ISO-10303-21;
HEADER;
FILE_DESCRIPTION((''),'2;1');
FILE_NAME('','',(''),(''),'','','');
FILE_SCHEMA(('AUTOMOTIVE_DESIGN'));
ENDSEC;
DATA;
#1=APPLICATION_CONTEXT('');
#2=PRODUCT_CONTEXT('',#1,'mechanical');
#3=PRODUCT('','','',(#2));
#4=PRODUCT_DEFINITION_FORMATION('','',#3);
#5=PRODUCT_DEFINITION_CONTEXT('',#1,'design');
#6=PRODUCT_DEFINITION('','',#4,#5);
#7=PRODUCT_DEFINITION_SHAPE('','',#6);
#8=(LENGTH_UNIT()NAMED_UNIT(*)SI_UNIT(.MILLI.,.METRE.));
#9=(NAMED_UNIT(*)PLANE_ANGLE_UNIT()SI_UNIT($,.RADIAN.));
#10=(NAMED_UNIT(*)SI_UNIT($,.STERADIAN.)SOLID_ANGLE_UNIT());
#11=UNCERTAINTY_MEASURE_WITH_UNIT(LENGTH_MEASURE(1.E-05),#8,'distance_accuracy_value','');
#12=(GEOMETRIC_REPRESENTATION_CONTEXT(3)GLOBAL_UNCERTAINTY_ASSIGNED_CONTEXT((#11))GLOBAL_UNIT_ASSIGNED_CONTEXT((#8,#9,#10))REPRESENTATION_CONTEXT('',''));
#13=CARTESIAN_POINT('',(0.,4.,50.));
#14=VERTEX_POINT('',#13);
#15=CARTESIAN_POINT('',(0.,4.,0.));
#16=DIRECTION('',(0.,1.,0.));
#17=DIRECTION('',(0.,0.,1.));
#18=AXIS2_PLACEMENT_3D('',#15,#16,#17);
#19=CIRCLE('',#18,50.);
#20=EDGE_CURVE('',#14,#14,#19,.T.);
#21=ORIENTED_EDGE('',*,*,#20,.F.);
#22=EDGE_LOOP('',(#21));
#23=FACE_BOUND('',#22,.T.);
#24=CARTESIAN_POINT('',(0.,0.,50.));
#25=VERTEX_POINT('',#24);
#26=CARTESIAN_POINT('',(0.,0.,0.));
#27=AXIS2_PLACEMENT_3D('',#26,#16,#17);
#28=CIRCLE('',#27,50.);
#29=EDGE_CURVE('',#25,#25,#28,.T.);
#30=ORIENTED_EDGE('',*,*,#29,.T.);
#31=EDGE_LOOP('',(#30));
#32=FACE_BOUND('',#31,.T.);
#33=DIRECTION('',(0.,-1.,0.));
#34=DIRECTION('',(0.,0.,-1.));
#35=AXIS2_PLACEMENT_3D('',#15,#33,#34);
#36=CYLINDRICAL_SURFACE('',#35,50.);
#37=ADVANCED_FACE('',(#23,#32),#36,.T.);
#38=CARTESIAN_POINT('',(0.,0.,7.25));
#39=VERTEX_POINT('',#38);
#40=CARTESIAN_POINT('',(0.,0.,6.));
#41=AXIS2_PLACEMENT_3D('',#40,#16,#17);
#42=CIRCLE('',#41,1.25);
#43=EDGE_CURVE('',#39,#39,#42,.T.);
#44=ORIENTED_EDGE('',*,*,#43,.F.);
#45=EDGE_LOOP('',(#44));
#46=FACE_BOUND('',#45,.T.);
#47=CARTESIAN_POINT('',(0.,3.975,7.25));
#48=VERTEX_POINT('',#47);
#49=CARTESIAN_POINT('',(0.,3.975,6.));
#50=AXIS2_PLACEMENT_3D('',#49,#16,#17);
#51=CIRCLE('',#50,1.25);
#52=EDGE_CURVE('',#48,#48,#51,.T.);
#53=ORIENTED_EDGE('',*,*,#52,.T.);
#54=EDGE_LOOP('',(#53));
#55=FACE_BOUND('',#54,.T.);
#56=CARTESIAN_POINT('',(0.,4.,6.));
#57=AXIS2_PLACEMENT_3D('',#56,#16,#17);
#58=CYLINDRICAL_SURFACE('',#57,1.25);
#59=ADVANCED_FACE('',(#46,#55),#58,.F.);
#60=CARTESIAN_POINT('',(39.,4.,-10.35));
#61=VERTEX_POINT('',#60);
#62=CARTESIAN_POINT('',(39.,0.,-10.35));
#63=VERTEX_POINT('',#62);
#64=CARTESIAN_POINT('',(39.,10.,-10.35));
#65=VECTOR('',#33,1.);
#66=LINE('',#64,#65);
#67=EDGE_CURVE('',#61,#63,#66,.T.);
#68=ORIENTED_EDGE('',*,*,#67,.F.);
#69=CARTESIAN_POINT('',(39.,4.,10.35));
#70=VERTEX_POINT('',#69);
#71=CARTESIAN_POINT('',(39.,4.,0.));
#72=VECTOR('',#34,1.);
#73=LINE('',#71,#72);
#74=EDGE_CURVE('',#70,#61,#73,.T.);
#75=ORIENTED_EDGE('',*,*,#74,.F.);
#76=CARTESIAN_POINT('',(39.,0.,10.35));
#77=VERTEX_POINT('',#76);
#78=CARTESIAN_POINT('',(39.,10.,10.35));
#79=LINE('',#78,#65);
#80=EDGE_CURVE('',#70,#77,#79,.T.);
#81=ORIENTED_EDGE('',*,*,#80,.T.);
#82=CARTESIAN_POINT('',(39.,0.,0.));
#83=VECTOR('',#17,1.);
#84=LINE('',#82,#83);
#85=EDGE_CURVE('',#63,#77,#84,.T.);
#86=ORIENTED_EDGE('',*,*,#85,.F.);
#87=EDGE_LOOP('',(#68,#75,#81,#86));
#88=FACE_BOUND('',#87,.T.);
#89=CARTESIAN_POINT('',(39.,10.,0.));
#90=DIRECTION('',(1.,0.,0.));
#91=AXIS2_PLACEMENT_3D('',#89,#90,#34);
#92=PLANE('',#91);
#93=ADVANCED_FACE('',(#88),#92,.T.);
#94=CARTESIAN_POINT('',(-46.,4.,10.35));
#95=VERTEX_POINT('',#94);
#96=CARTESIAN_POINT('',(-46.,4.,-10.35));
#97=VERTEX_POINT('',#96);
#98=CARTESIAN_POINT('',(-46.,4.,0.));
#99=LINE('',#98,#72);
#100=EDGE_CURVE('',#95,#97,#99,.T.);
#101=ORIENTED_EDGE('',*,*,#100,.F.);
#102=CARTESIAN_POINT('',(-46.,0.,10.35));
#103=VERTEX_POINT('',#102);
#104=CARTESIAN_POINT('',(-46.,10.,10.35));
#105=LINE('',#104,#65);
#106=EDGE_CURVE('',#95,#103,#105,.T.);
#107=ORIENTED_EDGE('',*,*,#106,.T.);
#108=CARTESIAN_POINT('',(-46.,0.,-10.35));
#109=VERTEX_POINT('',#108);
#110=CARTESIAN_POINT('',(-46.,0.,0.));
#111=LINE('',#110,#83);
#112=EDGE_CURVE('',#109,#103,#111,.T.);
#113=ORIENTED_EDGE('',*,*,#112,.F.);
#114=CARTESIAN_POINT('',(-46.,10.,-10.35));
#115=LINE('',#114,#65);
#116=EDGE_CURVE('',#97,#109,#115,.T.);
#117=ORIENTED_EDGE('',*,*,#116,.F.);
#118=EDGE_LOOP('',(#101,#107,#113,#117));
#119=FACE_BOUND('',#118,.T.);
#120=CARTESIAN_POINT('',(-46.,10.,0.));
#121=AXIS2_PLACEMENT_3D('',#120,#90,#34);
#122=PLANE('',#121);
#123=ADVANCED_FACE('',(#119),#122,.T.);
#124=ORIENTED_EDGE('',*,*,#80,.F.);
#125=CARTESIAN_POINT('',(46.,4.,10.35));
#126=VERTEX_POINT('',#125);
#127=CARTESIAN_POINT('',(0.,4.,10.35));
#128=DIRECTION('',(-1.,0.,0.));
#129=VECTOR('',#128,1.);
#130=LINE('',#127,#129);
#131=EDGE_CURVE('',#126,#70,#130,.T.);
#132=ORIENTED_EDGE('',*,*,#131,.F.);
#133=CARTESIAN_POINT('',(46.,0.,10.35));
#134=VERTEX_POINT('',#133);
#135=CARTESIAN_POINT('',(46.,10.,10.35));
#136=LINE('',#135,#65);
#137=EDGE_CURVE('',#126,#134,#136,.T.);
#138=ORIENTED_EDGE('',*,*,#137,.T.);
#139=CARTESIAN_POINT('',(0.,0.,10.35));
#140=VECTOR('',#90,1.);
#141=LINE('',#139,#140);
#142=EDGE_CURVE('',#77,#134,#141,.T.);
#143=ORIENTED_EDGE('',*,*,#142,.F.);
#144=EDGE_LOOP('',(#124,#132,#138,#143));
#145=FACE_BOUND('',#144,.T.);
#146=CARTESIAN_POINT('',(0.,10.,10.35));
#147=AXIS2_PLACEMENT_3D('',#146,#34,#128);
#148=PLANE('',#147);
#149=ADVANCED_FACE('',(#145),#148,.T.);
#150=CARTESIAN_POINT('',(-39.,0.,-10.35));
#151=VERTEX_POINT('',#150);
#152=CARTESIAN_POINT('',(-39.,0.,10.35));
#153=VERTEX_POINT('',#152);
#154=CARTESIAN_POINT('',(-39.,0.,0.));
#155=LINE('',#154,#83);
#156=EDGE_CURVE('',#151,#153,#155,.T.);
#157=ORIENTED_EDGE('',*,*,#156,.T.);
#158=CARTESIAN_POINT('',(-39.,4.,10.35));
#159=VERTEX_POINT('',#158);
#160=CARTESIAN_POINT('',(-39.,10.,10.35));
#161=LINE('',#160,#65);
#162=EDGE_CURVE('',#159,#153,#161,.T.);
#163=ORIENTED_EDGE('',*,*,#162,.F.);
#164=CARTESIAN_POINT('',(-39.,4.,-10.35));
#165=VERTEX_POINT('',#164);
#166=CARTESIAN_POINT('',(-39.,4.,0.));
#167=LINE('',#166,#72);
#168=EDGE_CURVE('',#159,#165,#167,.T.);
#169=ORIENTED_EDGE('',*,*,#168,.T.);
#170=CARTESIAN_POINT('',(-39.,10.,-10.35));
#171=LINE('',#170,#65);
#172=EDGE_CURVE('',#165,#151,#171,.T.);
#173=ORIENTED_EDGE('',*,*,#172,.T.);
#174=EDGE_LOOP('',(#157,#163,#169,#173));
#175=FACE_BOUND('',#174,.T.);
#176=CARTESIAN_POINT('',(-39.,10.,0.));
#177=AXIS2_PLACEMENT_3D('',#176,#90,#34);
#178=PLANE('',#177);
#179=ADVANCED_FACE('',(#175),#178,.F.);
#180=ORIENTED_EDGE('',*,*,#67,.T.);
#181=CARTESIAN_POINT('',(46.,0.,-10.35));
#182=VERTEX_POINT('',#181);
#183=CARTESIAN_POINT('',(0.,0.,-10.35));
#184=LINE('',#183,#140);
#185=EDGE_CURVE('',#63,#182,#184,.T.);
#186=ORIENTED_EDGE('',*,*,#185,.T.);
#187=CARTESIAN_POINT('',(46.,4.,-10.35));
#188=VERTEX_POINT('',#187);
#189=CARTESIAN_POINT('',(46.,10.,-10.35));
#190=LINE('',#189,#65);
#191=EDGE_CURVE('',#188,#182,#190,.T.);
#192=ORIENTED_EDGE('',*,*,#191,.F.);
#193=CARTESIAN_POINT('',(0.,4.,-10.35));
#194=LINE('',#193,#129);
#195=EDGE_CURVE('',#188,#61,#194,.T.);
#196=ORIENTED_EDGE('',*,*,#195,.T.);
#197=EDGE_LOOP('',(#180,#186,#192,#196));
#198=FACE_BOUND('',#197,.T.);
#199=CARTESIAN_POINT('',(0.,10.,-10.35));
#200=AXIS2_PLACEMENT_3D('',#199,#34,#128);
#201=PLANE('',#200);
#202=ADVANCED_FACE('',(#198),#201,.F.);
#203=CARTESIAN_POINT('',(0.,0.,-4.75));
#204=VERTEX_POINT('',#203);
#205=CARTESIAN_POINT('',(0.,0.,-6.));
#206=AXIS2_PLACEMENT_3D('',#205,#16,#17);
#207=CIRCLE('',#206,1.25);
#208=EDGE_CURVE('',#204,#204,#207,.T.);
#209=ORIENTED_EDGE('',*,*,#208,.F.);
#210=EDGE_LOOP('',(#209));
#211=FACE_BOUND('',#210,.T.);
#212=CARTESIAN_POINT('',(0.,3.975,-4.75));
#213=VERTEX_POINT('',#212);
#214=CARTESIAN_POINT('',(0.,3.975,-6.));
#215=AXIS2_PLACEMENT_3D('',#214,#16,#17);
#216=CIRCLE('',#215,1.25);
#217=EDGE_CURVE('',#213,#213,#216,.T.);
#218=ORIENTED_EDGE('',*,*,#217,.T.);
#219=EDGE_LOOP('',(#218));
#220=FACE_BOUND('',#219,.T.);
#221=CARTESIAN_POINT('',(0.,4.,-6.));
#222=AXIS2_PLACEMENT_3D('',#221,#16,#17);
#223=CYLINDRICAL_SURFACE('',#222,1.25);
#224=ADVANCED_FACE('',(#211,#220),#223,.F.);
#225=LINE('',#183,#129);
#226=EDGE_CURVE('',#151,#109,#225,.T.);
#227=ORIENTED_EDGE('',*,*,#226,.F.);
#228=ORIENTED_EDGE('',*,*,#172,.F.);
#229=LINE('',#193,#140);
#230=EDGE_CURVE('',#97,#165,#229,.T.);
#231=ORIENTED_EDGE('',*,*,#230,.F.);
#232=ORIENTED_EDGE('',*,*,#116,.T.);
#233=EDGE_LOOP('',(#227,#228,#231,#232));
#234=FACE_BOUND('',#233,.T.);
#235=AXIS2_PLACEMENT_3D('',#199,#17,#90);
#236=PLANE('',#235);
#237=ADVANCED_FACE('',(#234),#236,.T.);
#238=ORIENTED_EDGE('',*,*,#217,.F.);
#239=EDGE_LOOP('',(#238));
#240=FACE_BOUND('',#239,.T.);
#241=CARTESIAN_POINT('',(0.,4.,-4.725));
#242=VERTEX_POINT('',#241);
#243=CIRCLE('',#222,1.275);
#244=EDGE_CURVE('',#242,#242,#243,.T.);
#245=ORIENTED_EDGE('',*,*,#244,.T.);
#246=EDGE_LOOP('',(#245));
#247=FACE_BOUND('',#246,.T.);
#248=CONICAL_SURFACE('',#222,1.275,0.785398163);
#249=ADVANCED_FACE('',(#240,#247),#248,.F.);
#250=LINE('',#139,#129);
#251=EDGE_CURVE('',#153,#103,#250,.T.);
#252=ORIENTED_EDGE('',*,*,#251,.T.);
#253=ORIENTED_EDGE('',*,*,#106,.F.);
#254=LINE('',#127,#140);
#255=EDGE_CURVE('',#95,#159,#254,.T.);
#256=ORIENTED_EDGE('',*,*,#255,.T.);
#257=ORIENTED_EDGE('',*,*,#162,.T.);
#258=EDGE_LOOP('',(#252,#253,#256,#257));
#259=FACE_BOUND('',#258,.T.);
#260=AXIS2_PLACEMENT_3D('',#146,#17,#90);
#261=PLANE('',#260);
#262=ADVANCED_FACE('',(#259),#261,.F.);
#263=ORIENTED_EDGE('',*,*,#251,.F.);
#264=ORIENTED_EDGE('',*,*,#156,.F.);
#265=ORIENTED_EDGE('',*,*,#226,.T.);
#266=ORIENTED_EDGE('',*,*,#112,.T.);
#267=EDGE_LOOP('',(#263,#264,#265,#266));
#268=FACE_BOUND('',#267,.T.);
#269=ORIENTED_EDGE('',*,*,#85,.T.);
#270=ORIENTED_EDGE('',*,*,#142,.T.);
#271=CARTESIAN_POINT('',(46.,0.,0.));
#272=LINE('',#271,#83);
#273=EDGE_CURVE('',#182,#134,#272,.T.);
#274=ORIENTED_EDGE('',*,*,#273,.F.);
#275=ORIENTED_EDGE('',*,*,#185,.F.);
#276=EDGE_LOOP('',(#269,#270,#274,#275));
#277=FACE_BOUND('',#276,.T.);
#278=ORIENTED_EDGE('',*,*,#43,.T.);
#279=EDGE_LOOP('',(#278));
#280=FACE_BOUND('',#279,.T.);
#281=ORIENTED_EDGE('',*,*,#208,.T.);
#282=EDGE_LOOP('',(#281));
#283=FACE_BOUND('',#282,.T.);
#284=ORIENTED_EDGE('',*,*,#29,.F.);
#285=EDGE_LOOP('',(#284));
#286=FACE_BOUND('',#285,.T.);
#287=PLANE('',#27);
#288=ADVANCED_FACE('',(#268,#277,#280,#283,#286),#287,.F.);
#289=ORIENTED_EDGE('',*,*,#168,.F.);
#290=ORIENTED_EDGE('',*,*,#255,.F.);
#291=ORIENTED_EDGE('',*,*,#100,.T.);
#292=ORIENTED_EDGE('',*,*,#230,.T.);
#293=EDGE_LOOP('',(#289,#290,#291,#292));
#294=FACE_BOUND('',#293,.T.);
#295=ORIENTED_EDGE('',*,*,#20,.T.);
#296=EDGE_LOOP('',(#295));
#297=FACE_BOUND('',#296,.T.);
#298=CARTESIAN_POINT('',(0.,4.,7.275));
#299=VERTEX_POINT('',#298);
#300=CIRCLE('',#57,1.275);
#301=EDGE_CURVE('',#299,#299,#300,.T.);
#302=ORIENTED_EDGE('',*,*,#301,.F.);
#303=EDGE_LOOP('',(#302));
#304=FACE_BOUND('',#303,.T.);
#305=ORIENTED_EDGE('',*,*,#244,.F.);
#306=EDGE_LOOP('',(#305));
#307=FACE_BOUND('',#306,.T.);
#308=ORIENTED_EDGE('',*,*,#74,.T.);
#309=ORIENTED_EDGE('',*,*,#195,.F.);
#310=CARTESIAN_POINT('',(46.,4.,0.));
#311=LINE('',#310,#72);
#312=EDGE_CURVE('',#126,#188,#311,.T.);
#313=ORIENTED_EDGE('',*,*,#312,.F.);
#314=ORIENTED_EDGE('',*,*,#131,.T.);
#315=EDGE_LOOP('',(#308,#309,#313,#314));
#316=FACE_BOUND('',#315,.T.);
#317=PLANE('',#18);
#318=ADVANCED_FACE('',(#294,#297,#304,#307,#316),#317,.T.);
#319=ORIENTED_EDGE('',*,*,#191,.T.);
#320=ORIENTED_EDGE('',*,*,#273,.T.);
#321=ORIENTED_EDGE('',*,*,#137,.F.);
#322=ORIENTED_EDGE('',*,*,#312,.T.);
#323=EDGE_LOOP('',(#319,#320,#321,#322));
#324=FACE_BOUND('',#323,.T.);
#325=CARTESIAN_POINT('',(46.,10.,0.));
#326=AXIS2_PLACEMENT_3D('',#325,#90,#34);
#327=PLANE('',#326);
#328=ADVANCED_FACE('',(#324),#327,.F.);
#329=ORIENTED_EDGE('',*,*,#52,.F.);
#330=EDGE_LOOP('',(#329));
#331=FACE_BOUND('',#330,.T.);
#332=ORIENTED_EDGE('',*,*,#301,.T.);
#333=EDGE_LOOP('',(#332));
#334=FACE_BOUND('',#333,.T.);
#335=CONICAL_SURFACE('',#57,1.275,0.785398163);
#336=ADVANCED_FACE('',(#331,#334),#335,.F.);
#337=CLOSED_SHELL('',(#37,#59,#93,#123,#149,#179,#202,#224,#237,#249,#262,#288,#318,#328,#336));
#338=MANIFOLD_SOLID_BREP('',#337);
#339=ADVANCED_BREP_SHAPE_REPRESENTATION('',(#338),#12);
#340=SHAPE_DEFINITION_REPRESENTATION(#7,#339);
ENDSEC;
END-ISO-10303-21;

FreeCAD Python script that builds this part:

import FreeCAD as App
import Part
import Sketcher
from FreeCAD import Vector

doc = App.newDocument("Part")
body = doc.addObject("PartDesign::Body", "Body")

sketch1 = body.newObject("Sketcher::SketchObject", "Sketch")
sketch1.AttachmentSupport = (doc.getObject("XZ_Plane"), [""])
sketch1.MapMode = "FlatFace"
sketch1.addGeometry(Part.Circle(Vector(0, 0, 0), Vector(0, 0, 1), 50), False)
sketch1.addConstraint([
    Sketcher.Constraint("Coincident", 0, 3, -1, 1),
    Sketcher.Constraint("Diameter", 0, 100.0),
])
pad1 = body.newObject("PartDesign::Pad", "Pad")
pad1.Profile = sketch1
pad1.Length = 4
pad1.Reversed = True

sketch2 = body.newObject("Sketcher::SketchObject", "Sketch001")
sketch2.AttachmentSupport = (doc.getObject("XZ_Plane"), [""])
sketch2.MapMode = "FlatFace"
sketch2.AttachmentOffset = App.Placement(Vector(0, 0, -4), App.Rotation())
sketch2.addGeometry([
    Part.Circle(Vector(0, -6, 0), Vector(0, 0, 1), 1.25),
    Part.Circle(Vector(0, 6, 0), Vector(0, 0, 1), 1.25),
], False)
sketch2.addConstraint([
    Sketcher.Constraint("Equal", 0, 1),
    Sketcher.Constraint("Symmetric", 0, 3, 1, 3, -1, 1),
    Sketcher.Constraint("PointOnObject", 0, 3, -2),
    Sketcher.Constraint("Diameter", 0, 2.5),
    Sketcher.Constraint("DistanceY", 0, 3, -1, 1, 6.0),
])
doc.recompute()
hole = body.newObject("PartDesign::Hole", "Hole")
hole.Profile = sketch2
hole.ThreadType = "None"
hole.Diameter = 2.5
hole.DepthType = "ThroughAll"
hole.HoleCutType = "Countersink"
hole.HoleCutDiameter = 2.55
hole.HoleCutCountersinkAngle = 90
hole.Reversed = True

sketch3 = body.newObject("Sketcher::SketchObject", "Sketch002")
sketch3.AttachmentSupport = (doc.getObject("XZ_Plane"), [""])
sketch3.MapMode = "FlatFace"
sketch3.addGeometry([
    Part.LineSegment(Vector(-46, 10.35, 0), Vector(-46, -10.35, 0)),
    Part.LineSegment(Vector(-46, -10.35, 0), Vector(-39, -10.35, 0)),
    Part.LineSegment(Vector(-39, -10.35, 0), Vector(-39, 10.35, 0)),
    Part.LineSegment(Vector(-39, 10.35, 0), Vector(-46, 10.35, 0)),
    Part.LineSegment(Vector(39, 10.35, 0), Vector(39, -10.35, 0)),
    Part.LineSegment(Vector(39, -10.35, 0), Vector(46, -10.35, 0)),
    Part.LineSegment(Vector(46, -10.35, 0), Vector(46, 10.35, 0)),
    Part.LineSegment(Vector(46, 10.35, 0), Vector(39, 10.35, 0)),
], False)
sketch3.addConstraint([
    Sketcher.Constraint("Coincident", 0, 2, 1, 1),
    Sketcher.Constraint("Coincident", 1, 2, 2, 1),
    Sketcher.Constraint("Coincident", 2, 2, 3, 1),
    Sketcher.Constraint("Coincident", 3, 2, 0, 1),
    Sketcher.Constraint("Coincident", 4, 2, 5, 1),
    Sketcher.Constraint("Coincident", 5, 2, 6, 1),
    Sketcher.Constraint("Coincident", 6, 2, 7, 1),
    Sketcher.Constraint("Coincident", 7, 2, 4, 1),
    Sketcher.Constraint("Vertical", 0),
    Sketcher.Constraint("Horizontal", 1),
    Sketcher.Constraint("Vertical", 2),
    Sketcher.Constraint("Horizontal", 3),
    Sketcher.Constraint("Vertical", 4),
    Sketcher.Constraint("Horizontal", 5),
    Sketcher.Constraint("Vertical", 6),
    Sketcher.Constraint("Horizontal", 7),
    Sketcher.Constraint("Symmetric", 2, 2, 4, 2, -1, 1),
    Sketcher.Constraint("Symmetric", 0, 2, 6, 2, -1, 1),
    Sketcher.Constraint("Horizontal", 1, 2, 4, 2),
    Sketcher.Constraint("DistanceX", 1, 1, 1, 2, 7.0),
    Sketcher.Constraint("DistanceY", 0, 2, 0, 1, 20.7),
    Sketcher.Constraint("DistanceX", 0, 2, -1, 1, 46.0),
])
pocket1 = body.newObject("PartDesign::Pocket", "Pocket")
pocket1.Profile = sketch3
pocket1.Length = 10

doc.recompute()
